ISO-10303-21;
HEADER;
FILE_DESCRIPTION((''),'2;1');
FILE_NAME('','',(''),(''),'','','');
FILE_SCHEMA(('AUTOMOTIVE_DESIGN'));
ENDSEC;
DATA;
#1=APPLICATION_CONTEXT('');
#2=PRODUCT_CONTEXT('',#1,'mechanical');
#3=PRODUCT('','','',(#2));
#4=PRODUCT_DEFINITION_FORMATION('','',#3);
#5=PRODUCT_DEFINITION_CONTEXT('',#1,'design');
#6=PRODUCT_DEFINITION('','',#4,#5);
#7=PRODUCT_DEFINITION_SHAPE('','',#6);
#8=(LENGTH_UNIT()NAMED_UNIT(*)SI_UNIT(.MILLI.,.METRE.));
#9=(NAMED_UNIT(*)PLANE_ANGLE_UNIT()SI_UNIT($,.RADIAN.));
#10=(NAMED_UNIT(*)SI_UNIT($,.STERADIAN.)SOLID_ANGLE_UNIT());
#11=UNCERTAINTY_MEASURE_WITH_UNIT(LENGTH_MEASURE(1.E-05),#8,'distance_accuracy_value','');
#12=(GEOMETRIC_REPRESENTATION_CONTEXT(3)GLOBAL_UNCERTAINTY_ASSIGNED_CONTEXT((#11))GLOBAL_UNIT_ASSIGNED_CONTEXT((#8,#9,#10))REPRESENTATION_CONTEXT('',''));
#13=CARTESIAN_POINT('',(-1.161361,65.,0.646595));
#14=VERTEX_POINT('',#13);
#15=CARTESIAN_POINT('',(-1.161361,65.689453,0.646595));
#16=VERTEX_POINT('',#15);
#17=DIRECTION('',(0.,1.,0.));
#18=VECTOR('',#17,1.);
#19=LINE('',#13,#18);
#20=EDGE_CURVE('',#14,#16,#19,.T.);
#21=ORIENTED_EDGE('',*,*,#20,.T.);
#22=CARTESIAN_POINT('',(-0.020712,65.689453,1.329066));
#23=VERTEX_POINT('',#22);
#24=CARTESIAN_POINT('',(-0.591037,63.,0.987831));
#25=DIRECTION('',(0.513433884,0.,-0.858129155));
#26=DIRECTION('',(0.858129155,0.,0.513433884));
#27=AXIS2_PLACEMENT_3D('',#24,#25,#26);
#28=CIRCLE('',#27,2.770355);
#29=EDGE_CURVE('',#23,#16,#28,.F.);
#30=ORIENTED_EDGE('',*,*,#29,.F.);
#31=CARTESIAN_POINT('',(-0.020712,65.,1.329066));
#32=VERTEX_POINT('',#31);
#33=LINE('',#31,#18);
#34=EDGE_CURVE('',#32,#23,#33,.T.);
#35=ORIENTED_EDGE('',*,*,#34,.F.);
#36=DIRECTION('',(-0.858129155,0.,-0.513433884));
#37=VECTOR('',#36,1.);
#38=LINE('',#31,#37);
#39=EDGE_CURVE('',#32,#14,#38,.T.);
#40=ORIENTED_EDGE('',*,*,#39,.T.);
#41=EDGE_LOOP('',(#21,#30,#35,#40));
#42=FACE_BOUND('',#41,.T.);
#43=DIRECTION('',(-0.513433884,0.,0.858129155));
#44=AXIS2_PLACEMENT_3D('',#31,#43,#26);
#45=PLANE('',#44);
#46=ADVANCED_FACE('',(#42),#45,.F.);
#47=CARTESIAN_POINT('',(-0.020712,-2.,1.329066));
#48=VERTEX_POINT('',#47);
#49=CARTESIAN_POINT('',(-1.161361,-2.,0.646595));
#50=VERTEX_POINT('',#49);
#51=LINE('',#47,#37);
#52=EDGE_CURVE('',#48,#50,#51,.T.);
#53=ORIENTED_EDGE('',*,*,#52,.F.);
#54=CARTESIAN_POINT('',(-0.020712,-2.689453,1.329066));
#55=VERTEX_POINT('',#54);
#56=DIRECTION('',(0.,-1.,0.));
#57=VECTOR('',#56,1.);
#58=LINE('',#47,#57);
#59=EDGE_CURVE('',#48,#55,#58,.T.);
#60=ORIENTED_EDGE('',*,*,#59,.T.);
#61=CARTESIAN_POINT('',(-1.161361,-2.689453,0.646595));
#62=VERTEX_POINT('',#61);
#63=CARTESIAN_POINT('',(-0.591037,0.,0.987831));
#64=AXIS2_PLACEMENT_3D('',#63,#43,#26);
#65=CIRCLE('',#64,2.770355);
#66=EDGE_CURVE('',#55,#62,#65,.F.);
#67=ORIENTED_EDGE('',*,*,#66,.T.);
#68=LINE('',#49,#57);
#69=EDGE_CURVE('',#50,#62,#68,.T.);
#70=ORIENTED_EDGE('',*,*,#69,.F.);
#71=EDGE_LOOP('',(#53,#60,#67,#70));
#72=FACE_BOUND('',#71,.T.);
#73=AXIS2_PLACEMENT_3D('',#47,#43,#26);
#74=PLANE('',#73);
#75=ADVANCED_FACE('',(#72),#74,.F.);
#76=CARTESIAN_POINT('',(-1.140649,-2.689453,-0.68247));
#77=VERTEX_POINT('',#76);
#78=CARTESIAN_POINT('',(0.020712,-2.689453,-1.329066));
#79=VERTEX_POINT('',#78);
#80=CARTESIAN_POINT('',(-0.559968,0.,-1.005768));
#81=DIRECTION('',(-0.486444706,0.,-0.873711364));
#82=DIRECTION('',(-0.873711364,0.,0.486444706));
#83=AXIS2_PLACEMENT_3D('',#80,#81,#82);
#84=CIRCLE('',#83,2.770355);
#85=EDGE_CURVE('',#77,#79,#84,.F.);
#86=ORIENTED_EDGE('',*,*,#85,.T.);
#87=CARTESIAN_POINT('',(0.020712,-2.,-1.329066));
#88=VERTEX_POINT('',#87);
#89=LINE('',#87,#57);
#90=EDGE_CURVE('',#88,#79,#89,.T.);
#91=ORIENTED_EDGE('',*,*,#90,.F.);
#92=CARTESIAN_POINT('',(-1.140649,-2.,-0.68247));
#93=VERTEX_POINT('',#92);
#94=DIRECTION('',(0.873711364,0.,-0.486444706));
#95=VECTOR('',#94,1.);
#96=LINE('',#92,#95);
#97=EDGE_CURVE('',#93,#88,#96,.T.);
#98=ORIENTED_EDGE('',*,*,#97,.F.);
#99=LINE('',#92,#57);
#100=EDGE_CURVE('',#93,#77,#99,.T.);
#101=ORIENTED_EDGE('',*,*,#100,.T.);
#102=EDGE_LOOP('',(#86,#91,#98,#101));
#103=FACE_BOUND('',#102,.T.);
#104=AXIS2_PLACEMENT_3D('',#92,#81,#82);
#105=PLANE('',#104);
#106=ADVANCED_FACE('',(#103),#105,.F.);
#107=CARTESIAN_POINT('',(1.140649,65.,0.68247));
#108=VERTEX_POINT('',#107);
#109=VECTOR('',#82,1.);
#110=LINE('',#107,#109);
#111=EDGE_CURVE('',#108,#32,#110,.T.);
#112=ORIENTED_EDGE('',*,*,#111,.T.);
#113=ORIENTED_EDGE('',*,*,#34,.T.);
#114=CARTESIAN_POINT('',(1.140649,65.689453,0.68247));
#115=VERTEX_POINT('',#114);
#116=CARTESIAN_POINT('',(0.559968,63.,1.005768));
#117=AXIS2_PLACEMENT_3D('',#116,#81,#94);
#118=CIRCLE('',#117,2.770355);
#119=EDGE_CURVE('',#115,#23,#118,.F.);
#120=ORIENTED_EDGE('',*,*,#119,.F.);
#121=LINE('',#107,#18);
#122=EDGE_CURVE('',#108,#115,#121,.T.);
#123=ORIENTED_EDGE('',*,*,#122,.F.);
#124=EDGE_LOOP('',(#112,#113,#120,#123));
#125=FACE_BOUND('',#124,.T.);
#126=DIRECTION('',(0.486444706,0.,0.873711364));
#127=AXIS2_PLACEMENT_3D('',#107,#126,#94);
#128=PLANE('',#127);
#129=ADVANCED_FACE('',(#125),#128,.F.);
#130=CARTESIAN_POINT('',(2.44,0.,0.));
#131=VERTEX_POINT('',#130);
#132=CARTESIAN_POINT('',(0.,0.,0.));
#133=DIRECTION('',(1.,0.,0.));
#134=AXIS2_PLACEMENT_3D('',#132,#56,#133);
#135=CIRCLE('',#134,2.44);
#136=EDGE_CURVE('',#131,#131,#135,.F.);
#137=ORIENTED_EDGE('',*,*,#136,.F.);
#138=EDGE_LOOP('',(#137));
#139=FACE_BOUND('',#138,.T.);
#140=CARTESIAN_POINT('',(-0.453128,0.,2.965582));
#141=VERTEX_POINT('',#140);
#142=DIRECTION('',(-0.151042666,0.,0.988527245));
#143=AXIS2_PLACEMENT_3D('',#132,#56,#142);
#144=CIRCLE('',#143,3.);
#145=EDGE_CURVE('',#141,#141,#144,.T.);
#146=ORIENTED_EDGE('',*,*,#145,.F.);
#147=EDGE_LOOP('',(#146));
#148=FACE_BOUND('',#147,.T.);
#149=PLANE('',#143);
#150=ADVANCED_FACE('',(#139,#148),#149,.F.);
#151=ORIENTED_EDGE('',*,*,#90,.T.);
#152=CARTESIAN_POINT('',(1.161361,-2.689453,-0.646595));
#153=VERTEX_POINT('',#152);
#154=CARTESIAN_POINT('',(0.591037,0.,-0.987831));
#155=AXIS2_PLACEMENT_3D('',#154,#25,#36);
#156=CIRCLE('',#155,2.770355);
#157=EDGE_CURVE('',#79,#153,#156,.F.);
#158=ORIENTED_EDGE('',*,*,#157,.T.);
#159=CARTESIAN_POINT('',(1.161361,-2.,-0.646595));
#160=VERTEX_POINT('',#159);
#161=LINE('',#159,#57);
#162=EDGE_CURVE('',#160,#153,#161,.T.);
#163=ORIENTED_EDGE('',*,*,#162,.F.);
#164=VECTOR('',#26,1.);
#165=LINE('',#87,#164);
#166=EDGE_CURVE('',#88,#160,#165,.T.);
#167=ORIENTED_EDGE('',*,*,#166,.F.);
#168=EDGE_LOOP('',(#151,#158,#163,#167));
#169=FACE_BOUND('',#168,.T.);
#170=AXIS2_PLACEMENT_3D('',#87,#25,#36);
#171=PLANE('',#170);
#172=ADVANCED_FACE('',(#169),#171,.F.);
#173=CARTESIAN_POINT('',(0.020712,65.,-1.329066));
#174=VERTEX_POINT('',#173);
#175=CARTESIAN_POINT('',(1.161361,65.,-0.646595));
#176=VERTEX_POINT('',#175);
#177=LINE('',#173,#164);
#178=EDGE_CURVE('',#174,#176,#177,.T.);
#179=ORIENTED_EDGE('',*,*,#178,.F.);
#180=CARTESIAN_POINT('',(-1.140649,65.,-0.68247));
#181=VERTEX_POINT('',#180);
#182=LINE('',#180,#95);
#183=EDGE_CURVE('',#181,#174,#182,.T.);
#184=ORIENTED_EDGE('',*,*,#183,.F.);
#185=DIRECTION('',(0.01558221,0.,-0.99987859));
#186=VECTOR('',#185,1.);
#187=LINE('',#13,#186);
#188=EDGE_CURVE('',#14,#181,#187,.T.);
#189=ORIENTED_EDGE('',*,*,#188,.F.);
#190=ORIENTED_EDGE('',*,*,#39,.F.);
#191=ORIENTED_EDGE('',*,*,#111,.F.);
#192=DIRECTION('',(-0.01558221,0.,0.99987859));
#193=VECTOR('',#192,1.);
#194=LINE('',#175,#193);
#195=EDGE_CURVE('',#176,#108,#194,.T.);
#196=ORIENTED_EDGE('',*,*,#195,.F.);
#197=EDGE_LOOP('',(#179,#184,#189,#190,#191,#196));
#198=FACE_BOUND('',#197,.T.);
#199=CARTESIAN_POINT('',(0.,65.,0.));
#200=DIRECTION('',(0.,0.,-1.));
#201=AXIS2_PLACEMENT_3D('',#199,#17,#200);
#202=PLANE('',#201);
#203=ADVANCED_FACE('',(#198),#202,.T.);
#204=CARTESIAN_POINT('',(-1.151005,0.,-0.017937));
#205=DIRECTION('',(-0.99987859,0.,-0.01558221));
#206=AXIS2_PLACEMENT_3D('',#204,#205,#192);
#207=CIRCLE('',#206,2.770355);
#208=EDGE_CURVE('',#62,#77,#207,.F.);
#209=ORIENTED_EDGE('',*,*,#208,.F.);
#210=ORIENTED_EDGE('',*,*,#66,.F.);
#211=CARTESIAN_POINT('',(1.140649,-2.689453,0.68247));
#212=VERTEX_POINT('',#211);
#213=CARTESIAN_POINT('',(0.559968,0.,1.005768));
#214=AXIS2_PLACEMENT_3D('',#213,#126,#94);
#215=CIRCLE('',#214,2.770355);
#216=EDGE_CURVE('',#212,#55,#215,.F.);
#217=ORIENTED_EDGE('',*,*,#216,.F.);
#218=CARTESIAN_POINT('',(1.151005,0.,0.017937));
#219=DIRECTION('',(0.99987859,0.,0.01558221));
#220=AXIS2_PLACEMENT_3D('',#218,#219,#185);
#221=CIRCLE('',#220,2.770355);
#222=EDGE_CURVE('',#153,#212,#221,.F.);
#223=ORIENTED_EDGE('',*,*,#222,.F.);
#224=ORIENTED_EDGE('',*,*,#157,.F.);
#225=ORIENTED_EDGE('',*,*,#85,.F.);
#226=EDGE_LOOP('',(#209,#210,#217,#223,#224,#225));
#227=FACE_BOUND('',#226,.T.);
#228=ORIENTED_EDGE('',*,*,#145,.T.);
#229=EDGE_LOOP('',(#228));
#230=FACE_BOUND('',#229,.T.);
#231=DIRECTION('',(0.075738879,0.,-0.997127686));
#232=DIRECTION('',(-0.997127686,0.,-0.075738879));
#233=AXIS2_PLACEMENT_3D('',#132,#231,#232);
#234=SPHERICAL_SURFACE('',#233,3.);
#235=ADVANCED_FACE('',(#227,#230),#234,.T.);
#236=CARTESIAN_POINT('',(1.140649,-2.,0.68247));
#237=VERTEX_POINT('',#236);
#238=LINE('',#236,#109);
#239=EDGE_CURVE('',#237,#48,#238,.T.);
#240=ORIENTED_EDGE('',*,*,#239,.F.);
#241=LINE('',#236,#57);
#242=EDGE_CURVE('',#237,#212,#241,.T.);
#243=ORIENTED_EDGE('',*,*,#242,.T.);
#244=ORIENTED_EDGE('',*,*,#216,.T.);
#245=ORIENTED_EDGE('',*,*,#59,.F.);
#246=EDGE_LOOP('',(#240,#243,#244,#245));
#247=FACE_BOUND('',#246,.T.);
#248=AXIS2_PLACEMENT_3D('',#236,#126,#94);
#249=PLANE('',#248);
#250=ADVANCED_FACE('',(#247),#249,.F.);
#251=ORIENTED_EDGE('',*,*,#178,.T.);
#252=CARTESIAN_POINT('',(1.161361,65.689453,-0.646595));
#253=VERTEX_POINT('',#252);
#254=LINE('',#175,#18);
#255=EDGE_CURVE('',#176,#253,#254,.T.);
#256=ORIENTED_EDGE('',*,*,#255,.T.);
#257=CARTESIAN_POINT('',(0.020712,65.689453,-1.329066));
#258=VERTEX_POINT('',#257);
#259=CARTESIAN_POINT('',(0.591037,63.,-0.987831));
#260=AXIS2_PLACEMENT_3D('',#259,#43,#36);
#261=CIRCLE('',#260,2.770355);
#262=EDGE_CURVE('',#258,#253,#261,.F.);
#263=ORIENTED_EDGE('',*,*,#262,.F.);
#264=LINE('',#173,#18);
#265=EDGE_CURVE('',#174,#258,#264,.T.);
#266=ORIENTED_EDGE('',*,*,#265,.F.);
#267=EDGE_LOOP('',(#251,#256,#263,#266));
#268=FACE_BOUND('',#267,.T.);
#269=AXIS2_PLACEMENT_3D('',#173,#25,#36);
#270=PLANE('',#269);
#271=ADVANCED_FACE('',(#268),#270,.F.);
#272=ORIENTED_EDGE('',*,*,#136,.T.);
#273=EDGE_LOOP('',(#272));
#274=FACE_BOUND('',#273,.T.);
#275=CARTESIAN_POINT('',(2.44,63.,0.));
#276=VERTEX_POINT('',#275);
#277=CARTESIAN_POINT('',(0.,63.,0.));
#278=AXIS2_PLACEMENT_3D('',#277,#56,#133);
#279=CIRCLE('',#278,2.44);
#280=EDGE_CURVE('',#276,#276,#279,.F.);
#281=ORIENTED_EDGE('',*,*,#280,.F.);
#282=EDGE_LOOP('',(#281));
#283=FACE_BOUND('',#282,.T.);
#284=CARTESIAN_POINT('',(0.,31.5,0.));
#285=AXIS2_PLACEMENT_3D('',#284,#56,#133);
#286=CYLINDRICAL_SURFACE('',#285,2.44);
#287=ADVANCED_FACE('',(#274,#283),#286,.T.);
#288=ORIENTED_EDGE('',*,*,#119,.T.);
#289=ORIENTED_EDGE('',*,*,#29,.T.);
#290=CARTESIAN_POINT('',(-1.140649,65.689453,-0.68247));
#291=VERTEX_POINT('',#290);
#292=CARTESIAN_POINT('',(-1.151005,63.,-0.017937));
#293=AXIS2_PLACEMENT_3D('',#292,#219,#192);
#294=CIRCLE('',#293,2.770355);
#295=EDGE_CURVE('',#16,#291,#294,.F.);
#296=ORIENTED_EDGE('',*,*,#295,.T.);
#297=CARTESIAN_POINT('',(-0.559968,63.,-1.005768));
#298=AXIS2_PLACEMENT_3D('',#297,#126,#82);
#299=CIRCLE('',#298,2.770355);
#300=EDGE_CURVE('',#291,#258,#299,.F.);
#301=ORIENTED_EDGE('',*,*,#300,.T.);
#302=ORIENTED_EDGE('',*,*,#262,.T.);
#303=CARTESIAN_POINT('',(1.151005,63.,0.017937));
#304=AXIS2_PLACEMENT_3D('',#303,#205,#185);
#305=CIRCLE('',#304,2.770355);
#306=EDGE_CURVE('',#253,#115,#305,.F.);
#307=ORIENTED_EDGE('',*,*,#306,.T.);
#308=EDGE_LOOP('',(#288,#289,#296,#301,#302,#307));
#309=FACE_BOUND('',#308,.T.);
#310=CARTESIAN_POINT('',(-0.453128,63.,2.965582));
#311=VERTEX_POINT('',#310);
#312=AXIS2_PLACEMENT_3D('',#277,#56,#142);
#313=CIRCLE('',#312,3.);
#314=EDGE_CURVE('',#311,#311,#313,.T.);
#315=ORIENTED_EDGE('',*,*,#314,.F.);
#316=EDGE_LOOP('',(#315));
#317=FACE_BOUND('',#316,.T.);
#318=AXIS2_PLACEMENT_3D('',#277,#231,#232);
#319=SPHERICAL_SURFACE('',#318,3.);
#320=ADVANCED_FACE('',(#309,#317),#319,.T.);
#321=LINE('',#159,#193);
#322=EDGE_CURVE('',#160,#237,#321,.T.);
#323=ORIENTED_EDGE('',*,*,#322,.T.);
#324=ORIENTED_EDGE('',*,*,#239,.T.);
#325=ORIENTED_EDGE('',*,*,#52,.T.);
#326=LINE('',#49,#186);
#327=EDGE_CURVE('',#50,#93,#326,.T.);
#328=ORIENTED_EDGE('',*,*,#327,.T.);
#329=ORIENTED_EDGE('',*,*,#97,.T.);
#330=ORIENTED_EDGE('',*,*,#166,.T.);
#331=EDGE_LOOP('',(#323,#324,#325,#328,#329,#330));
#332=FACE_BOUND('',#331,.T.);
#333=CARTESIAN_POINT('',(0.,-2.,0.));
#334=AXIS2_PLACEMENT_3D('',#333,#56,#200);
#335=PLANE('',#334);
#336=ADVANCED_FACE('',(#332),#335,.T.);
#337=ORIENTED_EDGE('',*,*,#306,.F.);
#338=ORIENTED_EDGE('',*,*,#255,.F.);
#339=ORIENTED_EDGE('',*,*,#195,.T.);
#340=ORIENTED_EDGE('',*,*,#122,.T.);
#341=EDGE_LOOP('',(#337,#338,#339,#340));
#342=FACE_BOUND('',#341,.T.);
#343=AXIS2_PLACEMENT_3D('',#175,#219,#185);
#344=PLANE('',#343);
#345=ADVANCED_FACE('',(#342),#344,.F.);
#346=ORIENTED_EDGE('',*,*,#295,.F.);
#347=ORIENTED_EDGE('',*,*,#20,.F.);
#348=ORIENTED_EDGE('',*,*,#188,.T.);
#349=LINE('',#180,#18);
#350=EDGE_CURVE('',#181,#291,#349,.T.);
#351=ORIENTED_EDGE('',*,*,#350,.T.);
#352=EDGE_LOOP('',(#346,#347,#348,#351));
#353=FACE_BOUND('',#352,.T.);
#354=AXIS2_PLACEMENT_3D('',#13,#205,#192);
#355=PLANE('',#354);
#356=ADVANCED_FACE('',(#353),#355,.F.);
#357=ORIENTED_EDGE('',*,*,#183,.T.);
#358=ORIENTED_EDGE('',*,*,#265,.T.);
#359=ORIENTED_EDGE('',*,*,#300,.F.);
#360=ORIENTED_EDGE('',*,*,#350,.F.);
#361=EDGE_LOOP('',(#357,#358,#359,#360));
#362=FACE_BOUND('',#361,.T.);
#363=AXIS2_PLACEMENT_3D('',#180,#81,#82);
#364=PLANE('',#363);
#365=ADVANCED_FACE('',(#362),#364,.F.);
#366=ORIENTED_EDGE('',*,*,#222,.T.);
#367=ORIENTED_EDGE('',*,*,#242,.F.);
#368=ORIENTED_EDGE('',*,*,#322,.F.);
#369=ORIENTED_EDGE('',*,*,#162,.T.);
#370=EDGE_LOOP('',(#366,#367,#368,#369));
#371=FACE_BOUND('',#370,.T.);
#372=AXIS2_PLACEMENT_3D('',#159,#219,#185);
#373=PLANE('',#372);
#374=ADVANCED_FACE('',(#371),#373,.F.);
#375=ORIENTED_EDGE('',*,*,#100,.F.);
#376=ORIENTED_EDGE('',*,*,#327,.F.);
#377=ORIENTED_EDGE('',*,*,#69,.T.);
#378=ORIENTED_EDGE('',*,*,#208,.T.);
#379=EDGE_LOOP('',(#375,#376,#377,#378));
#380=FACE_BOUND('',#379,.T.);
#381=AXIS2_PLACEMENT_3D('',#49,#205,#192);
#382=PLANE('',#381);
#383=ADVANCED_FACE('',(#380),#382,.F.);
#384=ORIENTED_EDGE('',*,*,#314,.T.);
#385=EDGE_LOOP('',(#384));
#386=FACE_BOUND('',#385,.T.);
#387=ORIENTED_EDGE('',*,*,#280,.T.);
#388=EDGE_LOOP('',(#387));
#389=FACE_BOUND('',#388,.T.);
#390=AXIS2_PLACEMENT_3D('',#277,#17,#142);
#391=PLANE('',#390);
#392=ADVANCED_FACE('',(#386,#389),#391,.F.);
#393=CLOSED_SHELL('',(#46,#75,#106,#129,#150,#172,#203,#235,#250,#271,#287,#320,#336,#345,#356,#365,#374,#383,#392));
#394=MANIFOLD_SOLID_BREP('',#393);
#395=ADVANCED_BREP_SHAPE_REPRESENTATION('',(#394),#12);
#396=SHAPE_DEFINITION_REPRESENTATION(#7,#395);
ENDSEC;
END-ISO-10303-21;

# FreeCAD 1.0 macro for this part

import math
import FreeCAD as App
import Part
import Sketcher
from FreeCAD import Vector

doc = App.newDocument("Part")
params = doc.addObject("Spreadsheet::Sheet", "Params")
for row, (alias, value) in enumerate([
    ("sketch1_radius", "3 mm"),
    ("revolution_angle", "180 deg"),
    ("pocket1_length", "1 mm"),
    ("sketch3_diameter", "4.88 mm"),
    ("pad1_length", "31.5 mm"),
], start=1):
    params.set(f"A{row}", alias)
    params.set(f"B{row}", "=" + value)
    params.setAlias(f"B{row}", alias)

body = doc.addObject("PartDesign::Body", "Body")

sketch1 = body.newObject("Sketcher::SketchObject", "Sketch")
sketch1.AttachmentSupport = (doc.getObject("XZ_Plane"), [""])
sketch1.MapMode = "FlatFace"
sketch1.addGeometry([
    Part.LineSegment(Vector(-0.2, 3, 0), Vector(0.2, -3, 0)),
    Part.ArcOfCircle(Part.Circle(Vector(0, 0, 0), Vector(0, 0, 1), 3), math.radians(94), math.radians(274)),
], False)
sketch1.addGeometry(Part.LineSegment(Vector(0.2, -3, 0), Vector(-0.2, 3, 0)), True)
sketch1.addConstraint([
    Sketcher.Constraint("Coincident", 0, 1, 1, 1),
    Sketcher.Constraint("Coincident", 1, 2, 0, 2),
    Sketcher.Constraint("Coincident", 1, 3, -1, 1),
    Sketcher.Constraint("Coincident", 2, 1, 1, 2),
    Sketcher.Constraint("Coincident", 2, 2, 0, 1),
    Sketcher.Constraint("Radius", 1, 3.0),
    Sketcher.Constraint("DistanceX", 0, 1, -1, 1, 0.227217),
    Sketcher.Constraint("DistanceX", -1, 1, 1, 2, 0.227217),
])
sketch1.setExpression("Constraints[5]", "Params.sketch1_radius")
revolution = body.newObject("PartDesign::Revolution", "Revolution")
revolution.Profile = sketch1
revolution.ReferenceAxis = (sketch1, ["Axis0"])
revolution.setExpression("Angle", "Params.revolution_angle")

sketch2 = body.newObject("Sketcher::SketchObject", "Sketch001")
sketch2.AttachmentSupport = (doc.getObject("XZ_Plane"), [""])
sketch2.MapMode = "FlatFace"
sketch2.AttachmentOffset = App.Placement(Vector(0, 0, 3), App.Rotation())
sketch2.addGeometry([
    Part.LineSegment(Vector(-1.2, 0.6, 0), Vector(-1.1, -0.7, 0)),
    Part.LineSegment(Vector(-1.1, -0.7, 0), Vector(0, -1.3, 0)),
    Part.LineSegment(Vector(0, -1.3, 0), Vector(1.2, -0.6, 0)),
    Part.LineSegment(Vector(1.2, -0.6, 0), Vector(1.1, 0.7, 0)),
    Part.LineSegment(Vector(1.1, 0.7, 0), Vector(0, 1.3, 0)),
    Part.LineSegment(Vector(0, 1.3, 0), Vector(-1.2, 0.6, 0)),
], False)
sketch2.addConstraint([
    Sketcher.Constraint("Coincident", 0, 2, 1, 1),
    Sketcher.Constraint("Coincident", 1, 2, 2, 1),
    Sketcher.Constraint("Coincident", 2, 2, 3, 1),
    Sketcher.Constraint("Coincident", 3, 2, 4, 1),
    Sketcher.Constraint("Coincident", 4, 2, 5, 1),
    Sketcher.Constraint("Coincident", 5, 2, 0, 1),
    Sketcher.Constraint("Symmetric", 0, 2, 3, 2, -1, 1),
    Sketcher.Constraint("Symmetric", 1, 2, 4, 2, -1, 1),
    Sketcher.Constraint("Symmetric", 2, 2, 5, 2, -1, 1),
    Sketcher.Constraint("Equal", 0, 1),
    Sketcher.Constraint("Equal", 1, 2),
    Sketcher.Constraint("DistanceX", 0, 2, -1, 1, 1.140649),
    Sketcher.Constraint("DistanceY", 0, 2, -1, 1, 0.68247),
    Sketcher.Constraint("DistanceX", -1, 1, 2, 2, 1.161361),
    Sketcher.Constraint("DistanceX", 0, 2, 1, 2, 1.161361),
])
pocket1 = body.newObject("PartDesign::Pocket", "Pocket")
pocket1.Profile = sketch2
pocket1.setExpression("Length", "Params.pocket1_length")

sketch3 = body.newObject("Sketcher::SketchObject", "Sketch002")
sketch3.AttachmentSupport = (doc.getObject("XZ_Plane"), [""])
sketch3.MapMode = "FlatFace"
sketch3.addGeometry(Part.Circle(Vector(0, 0, 0), Vector(0, 0, 1), 2.4), False)
sketch3.addConstraint([
    Sketcher.Constraint("Coincident", 0, 3, -1, 1),
    Sketcher.Constraint("Diameter", 0, 4.88),
])
sketch3.setExpression("Constraints[1]", "Params.sketch3_diameter")
pad1 = body.newObject("PartDesign::Pad", "Pad")
pad1.Profile = sketch3
pad1.setExpression("Length", "Params.pad1_length")
pad1.Reversed = True
body2 = doc.addObject("PartDesign::Body", "Body001")
doc.recompute()

body2.BaseFeature = body
doc.recompute()

mirroring = doc.addObject("Part::Mirroring", "Mirroring")
mirroring.Source = body
mirroring.Base = Vector(0, 31.5, 0)
mirroring.Normal = Vector(0, 1, 0)
body3 = doc.addObject("PartDesign::Body", "Body002")
body3.BaseFeature = mirroring
boolean = body2.newObject("PartDesign::Boolean", "Boolean")
boolean.Type = "Fuse"
boolean.addObjects([body3])
doc.recompute()
mirroring.Visibility = False

doc.recompute()
